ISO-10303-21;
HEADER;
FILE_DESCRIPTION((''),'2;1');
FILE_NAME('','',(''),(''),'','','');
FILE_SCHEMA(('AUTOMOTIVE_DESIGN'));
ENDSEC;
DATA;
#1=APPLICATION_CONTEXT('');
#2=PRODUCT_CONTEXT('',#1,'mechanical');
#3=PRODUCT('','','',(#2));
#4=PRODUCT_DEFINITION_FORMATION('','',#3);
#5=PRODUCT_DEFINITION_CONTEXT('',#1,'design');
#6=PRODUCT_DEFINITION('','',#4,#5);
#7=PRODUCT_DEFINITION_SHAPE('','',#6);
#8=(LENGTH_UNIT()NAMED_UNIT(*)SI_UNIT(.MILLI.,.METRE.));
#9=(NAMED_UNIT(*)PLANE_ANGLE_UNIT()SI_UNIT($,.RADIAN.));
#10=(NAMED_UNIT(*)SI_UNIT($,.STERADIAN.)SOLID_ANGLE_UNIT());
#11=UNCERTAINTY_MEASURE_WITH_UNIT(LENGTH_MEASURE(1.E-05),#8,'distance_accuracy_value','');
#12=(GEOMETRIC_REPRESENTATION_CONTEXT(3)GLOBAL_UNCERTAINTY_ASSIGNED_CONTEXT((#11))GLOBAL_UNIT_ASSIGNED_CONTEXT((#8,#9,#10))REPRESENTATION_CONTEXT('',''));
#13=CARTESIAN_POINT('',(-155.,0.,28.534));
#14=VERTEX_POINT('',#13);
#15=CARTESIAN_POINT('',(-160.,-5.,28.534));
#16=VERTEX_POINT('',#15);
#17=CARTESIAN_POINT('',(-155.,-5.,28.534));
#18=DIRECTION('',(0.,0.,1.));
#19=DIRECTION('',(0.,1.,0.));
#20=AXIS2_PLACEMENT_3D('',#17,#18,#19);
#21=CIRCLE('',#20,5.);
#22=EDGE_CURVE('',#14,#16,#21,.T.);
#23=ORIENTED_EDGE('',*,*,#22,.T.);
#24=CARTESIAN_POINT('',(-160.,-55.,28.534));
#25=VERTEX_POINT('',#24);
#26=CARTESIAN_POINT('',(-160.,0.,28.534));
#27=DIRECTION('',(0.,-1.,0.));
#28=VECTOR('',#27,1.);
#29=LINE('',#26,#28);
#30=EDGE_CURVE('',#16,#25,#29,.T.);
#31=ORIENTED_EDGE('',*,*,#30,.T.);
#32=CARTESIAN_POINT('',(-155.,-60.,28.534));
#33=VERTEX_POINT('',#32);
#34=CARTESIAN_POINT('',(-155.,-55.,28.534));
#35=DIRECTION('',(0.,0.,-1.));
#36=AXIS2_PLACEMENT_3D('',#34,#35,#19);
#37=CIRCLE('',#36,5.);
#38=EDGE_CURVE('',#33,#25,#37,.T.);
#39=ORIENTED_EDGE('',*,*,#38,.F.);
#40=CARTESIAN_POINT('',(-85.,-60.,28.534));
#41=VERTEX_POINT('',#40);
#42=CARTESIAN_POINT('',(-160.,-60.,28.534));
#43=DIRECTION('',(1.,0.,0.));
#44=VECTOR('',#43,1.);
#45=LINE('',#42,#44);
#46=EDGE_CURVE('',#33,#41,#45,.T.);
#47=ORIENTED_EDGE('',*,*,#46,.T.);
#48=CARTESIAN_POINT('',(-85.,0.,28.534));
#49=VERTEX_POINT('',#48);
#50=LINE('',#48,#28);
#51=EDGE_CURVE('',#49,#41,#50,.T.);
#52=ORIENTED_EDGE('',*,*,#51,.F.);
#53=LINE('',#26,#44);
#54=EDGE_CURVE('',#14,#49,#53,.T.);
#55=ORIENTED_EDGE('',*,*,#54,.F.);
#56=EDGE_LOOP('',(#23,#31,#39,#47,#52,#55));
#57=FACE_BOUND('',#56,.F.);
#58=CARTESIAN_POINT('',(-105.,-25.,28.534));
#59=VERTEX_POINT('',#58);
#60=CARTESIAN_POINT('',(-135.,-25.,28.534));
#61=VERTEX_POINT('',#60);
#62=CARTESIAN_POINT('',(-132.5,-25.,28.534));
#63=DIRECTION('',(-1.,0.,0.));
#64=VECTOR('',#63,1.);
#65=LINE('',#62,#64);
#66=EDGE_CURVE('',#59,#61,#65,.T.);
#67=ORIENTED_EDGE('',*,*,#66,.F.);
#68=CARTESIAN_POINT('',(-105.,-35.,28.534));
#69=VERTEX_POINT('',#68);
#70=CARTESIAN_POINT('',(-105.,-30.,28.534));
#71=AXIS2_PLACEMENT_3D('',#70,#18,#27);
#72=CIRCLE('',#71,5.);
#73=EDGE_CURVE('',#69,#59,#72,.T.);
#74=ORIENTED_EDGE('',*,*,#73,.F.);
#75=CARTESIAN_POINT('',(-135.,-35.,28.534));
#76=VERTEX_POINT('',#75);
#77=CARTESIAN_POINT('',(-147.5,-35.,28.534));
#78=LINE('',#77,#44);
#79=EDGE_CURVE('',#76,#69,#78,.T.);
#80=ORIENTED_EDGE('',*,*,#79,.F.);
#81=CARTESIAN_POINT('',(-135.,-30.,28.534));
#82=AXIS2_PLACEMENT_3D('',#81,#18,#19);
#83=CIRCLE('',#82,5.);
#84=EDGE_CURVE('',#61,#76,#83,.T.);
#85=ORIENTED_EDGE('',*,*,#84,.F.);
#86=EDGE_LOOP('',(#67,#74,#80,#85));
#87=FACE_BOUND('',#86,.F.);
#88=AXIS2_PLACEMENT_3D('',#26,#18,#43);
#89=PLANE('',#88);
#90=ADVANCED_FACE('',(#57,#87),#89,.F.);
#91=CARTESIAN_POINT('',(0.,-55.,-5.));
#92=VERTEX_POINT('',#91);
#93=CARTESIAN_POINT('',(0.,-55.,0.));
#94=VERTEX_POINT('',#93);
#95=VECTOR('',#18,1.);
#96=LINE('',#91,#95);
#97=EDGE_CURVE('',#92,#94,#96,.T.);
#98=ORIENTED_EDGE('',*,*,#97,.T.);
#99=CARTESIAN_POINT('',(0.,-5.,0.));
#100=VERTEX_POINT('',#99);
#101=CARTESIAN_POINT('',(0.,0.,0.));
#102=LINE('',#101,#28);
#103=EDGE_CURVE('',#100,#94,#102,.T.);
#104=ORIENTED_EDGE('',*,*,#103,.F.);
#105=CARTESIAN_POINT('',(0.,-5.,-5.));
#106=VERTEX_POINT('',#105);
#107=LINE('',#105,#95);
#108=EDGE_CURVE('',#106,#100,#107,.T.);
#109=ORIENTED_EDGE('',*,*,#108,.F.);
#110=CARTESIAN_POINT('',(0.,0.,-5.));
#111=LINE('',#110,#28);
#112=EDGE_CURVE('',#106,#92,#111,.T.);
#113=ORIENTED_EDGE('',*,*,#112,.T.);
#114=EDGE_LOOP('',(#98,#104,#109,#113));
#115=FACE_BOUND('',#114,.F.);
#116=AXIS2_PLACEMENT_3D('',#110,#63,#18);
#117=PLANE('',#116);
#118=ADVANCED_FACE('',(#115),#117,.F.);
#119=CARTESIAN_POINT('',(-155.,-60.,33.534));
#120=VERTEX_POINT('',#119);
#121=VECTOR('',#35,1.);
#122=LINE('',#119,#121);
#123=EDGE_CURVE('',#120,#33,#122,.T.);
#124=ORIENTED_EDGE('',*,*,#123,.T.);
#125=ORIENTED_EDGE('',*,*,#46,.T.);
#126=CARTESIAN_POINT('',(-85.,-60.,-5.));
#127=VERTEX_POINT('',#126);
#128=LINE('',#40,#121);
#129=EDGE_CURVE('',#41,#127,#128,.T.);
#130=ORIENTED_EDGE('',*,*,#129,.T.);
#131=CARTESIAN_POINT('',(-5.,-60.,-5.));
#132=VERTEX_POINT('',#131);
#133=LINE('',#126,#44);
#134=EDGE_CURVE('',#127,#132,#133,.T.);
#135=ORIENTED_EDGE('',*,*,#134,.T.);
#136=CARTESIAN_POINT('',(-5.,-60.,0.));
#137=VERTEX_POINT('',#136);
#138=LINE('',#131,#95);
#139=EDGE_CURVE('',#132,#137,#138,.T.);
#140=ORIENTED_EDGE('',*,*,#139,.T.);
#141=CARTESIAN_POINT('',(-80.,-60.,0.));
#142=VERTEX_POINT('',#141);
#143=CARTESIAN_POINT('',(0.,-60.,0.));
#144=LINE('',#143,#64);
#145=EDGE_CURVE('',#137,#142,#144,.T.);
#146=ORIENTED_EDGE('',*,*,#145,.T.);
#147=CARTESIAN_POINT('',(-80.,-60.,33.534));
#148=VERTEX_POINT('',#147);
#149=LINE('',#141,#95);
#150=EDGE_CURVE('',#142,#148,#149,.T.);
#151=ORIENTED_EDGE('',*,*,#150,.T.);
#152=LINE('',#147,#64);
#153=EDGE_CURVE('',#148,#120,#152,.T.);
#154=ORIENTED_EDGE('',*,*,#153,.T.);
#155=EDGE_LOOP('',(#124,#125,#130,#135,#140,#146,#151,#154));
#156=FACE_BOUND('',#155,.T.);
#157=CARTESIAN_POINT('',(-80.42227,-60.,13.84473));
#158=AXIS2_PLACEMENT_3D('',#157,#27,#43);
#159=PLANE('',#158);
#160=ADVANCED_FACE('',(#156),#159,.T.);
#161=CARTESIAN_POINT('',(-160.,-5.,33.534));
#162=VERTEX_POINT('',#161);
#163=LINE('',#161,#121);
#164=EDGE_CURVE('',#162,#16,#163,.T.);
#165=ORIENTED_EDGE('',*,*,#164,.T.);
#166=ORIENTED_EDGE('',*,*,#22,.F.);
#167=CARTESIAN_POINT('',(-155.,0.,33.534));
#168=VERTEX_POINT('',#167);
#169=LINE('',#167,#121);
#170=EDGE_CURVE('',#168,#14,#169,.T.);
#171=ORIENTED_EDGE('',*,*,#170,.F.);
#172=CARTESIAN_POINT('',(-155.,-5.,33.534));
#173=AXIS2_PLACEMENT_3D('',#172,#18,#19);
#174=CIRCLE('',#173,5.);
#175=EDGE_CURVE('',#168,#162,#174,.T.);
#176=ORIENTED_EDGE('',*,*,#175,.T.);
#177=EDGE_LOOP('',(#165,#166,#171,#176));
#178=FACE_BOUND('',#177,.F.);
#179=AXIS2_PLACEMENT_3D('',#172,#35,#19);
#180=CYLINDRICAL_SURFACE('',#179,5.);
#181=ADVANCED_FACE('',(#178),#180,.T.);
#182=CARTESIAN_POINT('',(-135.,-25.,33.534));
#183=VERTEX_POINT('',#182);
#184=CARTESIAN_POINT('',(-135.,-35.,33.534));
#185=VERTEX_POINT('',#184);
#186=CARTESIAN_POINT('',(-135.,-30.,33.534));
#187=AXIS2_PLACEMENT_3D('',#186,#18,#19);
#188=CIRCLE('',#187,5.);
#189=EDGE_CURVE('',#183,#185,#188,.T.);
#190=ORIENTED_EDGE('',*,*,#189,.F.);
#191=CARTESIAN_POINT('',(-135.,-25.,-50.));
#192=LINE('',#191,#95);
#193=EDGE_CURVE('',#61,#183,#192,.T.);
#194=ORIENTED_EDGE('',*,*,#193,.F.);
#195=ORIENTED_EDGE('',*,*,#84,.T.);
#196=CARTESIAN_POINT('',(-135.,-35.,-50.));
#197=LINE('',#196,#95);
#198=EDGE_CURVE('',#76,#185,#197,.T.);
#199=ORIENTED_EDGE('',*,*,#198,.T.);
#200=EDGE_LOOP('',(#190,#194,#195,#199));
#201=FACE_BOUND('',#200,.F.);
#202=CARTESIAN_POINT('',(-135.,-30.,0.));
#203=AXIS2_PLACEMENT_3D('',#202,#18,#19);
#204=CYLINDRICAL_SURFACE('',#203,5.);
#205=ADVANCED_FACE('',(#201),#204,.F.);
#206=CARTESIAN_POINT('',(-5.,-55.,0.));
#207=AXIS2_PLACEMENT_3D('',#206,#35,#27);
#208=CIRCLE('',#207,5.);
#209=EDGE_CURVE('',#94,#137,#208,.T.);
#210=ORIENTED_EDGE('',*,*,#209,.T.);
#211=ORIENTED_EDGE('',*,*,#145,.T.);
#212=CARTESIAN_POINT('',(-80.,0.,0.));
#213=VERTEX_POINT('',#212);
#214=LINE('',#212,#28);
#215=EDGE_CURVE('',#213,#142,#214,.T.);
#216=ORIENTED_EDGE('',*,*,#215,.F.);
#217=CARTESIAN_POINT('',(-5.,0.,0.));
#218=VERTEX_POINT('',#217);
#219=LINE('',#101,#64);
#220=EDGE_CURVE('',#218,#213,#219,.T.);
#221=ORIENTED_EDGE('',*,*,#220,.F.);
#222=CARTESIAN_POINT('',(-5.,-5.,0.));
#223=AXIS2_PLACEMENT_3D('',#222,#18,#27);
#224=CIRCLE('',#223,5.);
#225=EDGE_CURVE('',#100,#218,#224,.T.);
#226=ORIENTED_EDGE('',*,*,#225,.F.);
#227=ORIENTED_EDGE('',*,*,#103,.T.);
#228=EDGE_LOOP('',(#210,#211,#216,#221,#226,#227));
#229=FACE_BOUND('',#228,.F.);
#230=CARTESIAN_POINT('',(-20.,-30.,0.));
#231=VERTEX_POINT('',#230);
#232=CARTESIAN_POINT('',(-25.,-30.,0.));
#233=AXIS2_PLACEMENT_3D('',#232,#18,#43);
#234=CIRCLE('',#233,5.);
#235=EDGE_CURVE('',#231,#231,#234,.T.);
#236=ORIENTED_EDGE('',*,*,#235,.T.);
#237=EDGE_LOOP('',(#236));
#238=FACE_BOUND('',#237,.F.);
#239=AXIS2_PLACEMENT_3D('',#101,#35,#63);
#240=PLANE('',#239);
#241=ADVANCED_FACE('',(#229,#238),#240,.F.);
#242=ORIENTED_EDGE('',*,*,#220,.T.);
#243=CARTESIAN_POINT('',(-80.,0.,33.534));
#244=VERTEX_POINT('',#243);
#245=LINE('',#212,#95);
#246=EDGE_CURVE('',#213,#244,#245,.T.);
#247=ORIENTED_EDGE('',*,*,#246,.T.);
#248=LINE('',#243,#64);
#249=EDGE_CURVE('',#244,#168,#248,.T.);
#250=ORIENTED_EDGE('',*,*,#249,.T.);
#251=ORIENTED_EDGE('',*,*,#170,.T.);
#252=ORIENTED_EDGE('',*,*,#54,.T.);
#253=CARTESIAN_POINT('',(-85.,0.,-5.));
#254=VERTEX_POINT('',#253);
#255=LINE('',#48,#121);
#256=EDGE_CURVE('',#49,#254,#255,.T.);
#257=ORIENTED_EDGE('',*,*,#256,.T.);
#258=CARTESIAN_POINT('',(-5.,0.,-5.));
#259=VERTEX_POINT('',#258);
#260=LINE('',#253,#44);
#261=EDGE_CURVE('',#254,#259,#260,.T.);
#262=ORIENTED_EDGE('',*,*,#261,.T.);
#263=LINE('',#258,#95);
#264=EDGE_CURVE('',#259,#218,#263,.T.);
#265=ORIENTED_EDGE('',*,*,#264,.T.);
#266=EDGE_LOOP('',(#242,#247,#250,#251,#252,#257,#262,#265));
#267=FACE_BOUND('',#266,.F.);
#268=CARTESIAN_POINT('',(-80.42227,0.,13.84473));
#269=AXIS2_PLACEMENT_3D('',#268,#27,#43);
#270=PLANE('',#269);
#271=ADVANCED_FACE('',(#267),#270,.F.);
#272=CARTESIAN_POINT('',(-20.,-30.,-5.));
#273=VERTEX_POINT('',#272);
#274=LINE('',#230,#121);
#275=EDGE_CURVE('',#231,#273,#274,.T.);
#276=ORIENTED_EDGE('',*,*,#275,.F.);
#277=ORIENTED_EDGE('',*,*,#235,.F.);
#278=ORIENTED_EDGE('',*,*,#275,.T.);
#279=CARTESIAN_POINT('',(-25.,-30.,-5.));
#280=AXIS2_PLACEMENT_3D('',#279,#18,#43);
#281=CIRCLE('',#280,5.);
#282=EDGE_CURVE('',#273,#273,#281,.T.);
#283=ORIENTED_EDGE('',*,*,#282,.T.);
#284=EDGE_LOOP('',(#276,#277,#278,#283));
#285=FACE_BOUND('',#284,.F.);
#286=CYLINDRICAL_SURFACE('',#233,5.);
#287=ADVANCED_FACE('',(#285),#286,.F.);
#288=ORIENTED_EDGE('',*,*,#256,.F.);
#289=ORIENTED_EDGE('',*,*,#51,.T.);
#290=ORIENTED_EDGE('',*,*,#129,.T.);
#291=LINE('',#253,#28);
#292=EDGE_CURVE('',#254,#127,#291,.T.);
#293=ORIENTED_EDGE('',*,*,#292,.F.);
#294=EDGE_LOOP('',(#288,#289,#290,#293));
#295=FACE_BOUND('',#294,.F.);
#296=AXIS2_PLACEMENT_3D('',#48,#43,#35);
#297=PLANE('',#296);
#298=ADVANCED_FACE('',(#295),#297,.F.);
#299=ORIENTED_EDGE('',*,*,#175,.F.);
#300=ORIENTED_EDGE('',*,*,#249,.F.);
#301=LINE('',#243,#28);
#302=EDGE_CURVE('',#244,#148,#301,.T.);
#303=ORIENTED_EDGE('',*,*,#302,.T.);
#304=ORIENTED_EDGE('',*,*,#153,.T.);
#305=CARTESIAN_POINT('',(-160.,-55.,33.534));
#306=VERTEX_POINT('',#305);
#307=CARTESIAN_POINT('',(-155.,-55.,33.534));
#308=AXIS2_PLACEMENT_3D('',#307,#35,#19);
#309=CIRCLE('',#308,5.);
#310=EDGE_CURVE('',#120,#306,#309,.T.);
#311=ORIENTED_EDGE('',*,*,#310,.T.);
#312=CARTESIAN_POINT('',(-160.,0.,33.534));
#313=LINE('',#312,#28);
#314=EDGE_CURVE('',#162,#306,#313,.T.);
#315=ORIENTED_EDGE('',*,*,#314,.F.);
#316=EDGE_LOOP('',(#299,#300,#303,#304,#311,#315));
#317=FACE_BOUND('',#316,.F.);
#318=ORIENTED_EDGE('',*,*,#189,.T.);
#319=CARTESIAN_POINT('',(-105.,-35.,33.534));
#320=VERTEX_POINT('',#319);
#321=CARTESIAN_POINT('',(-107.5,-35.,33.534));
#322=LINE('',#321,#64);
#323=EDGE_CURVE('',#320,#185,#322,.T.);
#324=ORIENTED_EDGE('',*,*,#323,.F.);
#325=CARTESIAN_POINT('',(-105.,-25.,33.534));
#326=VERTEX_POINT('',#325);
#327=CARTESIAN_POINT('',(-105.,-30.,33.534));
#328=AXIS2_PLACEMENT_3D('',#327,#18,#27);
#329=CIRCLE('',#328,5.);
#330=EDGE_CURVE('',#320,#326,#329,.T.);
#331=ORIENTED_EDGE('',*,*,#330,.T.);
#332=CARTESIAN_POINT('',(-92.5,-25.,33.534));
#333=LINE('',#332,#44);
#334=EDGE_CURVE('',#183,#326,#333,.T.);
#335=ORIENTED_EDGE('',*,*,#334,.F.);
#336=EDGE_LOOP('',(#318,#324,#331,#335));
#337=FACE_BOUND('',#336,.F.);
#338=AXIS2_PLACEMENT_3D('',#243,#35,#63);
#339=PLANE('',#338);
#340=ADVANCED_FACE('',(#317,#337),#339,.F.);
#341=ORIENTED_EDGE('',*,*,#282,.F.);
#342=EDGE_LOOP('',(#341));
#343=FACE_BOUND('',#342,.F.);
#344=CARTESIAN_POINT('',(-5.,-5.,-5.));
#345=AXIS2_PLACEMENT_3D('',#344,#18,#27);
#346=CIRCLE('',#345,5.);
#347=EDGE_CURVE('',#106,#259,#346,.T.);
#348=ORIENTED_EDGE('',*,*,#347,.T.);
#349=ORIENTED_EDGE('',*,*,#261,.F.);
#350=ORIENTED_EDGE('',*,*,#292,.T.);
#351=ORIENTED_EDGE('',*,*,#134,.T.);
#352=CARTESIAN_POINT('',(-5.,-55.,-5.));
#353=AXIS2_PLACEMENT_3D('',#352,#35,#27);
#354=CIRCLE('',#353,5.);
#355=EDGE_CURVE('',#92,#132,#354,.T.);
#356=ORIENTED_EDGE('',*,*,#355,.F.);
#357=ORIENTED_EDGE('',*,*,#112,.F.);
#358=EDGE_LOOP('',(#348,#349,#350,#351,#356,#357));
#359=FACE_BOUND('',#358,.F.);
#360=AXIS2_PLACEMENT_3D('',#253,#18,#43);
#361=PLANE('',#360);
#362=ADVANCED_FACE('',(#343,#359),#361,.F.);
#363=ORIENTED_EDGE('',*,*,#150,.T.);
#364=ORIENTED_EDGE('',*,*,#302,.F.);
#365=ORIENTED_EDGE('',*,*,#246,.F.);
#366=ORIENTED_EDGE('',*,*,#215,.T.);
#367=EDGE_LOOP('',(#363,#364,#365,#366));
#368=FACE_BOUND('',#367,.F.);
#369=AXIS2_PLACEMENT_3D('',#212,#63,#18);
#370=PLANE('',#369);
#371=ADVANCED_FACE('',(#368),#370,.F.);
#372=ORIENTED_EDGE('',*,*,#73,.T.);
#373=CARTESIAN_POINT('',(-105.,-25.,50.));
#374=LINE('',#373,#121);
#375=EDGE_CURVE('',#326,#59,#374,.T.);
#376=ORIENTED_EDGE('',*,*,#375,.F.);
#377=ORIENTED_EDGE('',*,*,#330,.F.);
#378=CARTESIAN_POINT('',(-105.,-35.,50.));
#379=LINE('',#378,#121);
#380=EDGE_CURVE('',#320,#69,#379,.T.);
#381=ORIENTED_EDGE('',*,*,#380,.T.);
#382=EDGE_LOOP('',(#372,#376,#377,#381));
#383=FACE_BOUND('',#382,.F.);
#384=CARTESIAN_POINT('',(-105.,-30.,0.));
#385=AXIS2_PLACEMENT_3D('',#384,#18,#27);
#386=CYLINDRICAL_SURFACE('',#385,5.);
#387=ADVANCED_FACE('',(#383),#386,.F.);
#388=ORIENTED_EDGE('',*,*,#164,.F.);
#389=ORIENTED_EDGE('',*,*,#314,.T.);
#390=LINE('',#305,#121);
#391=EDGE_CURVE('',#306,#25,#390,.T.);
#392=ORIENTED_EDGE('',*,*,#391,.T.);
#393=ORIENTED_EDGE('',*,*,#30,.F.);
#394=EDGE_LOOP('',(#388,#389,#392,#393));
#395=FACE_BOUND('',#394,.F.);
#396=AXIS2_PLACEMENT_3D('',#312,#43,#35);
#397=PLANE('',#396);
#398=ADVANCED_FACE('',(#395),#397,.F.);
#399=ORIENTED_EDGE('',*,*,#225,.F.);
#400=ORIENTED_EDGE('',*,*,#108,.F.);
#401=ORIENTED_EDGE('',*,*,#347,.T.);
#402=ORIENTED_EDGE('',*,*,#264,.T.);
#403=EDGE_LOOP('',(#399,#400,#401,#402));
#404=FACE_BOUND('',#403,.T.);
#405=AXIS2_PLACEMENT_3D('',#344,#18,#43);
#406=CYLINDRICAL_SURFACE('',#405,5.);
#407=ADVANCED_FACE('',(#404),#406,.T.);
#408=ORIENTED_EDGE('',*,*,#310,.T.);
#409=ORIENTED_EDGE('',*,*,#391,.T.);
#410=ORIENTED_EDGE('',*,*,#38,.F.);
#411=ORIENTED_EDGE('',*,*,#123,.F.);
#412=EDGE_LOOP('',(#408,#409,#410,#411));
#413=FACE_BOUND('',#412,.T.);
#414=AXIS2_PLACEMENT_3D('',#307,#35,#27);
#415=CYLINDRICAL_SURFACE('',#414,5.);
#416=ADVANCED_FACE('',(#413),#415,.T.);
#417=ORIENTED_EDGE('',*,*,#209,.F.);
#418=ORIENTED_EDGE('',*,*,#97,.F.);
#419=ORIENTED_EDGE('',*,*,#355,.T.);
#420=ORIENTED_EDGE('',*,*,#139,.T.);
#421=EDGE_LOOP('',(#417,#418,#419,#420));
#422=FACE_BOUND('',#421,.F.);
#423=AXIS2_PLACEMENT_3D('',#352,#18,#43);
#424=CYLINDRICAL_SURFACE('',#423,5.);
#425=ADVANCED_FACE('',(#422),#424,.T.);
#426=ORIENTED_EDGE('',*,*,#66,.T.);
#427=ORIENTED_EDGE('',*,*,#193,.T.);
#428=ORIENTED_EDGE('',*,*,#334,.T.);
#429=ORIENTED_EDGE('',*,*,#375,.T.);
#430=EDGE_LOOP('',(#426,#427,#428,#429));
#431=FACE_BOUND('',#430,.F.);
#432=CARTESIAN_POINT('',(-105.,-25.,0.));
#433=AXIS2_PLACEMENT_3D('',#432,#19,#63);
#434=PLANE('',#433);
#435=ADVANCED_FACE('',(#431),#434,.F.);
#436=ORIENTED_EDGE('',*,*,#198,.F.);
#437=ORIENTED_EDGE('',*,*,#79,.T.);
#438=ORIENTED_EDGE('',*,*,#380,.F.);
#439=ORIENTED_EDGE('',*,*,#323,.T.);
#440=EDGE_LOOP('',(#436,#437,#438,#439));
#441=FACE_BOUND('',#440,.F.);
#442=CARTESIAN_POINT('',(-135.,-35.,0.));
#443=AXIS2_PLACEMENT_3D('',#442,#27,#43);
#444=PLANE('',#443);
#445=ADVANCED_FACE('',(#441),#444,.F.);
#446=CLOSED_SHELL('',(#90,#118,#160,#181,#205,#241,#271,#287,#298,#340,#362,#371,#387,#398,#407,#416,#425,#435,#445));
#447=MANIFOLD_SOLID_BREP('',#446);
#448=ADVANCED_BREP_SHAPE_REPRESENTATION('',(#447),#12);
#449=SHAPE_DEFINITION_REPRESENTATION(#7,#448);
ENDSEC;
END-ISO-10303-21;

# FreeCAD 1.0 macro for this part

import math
import FreeCAD as App
import Part
import Sketcher
Q = App.Units.Quantity


def edges_at(feature, points):
    """Names of the edges that pass closest to the given points."""
    edges = feature.Shape.Edges
    near = lambda p: min(range(len(edges)), key=lambda i: edges[i].distToShape(Part.Vertex(*p))[0])
    return sorted({f"Edge{near(p) + 1}" for p in points})


def add_polygon(sketch, points):
    """Adds a closed chain of lines whose ends are joined by coincident constraints."""
    first, n = sketch.GeometryCount, len(points)
    for a, b in zip(points, points[1:] + points[:1]):
        sketch.addGeometry(Part.LineSegment(App.Vector(*a, 0), App.Vector(*b, 0)), False)
    for i in range(n):
        sketch.addConstraint(Sketcher.Constraint("Coincident", first + i, 2, first + (i + 1) % n, 1))

doc = App.newDocument("Part")
body = doc.addObject("PartDesign::Body", "Body")

sketch1 = doc.addObject("Sketcher::SketchObject", "Sketch")
body.addObject(sketch1)
sketch1.AttachmentSupport = (doc.XZ_Plane, [""])
sketch1.MapMode = "FlatFace"
add_polygon(sketch1, [(0, -5), (0, 0), (-80, 0), (-80, 34), (-160, 34), (-160, 29), (-85, 29), (-85, -5)])
sketch1.addConstraint([
    Sketcher.Constraint("Vertical", 0),
    Sketcher.Constraint("Horizontal", 1),
    Sketcher.Constraint("Vertical", 2),
    Sketcher.Constraint("Horizontal", 3),
    Sketcher.Constraint("Vertical", 4),
    Sketcher.Constraint("Horizontal", 5),
    Sketcher.Constraint("Vertical", 6),
    Sketcher.Constraint("Horizontal", 7),
    Sketcher.Constraint("Coincident", 0, 2, -1, 1),
    Sketcher.Constraint("Equal", 1, 3),
    Sketcher.Constraint("Equal", 0, 4),
    Sketcher.Constraint("DistanceX", 1, 2, 1, 1, Q("80 mm")),
    Sketcher.Constraint("DistanceX", 5, 1, 5, 2, Q("75 mm")),
    Sketcher.Constraint("DistanceY", 0, 1, 0, 2, Q("5 mm")),
    Sketcher.Constraint("DistanceY", 2, 1, 2, 2, Q("33.534 mm")),
])
pad1 = doc.addObject("PartDesign::Pad", "Pad")
body.addObject(pad1)
pad1.Profile = sketch1
pad1.Length = 60

sketch2 = doc.addObject("Sketcher::SketchObject", "Sketch001")
body.addObject(sketch2)
sketch2.AttachmentSupport = (doc.XY_Plane, [""])
sketch2.MapMode = "FlatFace"
sketch2.addGeometry([
    Part.Circle(App.Vector(-25, -30, 0), App.Vector(0, 0, 1), 5),
    Part.LineSegment(App.Vector(-105, -25, 0), App.Vector(-135, -25, 0)),
    Part.ArcOfCircle(Part.Circle(App.Vector(-135, -30, 0), App.Vector(0, 0, 1), 5), math.radians(90), math.radians(270)),
    Part.LineSegment(App.Vector(-135, -35, 0), App.Vector(-105, -35, 0)),
    Part.ArcOfCircle(Part.Circle(App.Vector(-105, -30, 0), App.Vector(0, 0, 1), 5), math.radians(-90), math.radians(90)),
], False)
sketch2.addConstraint([
    Sketcher.Constraint("Tangent", 1, 2, 2, 1),
    Sketcher.Constraint("Tangent", 2, 2, 3, 1),
    Sketcher.Constraint("Tangent", 3, 2, 4, 1),
    Sketcher.Constraint("Tangent", 4, 2, 1, 1),
    Sketcher.Constraint("Horizontal", 1),
    Sketcher.Constraint("Horizontal", 3),
    Sketcher.Constraint("Equal", 0, 2),
    Sketcher.Constraint("Horizontal", 0, 3, 2, 3),
    Sketcher.Constraint("Diameter", 0, Q("10 mm")),
    Sketcher.Constraint("DistanceX", 1, 2, 1, 1, Q("30 mm")),
    Sketcher.Constraint("DistanceX", 0, 3, -1, 1, Q("25 mm")),
    Sketcher.Constraint("DistanceY", 0, 3, -1, 1, Q("30 mm")),
    Sketcher.Constraint("DistanceX", 2, 3, -1, 1, Q("135 mm")),
])
pocket1 = doc.addObject("PartDesign::Pocket", "Pocket")
body.addObject(pocket1)
pocket1.Profile = sketch2
pocket1.Length = 100
pocket1.Midplane = True
doc.recompute()

fillet = doc.addObject("PartDesign::Fillet", "Fillet")
body.addObject(fillet)
fillet.Base = (pocket1, edges_at(pocket1, [
    (-160, -60, 31.034),
    (-160, 0, 31.034),
    (0, -60, -2.5),
    (0, 0, -2.5),
]))
fillet.Radius = 5

doc.recompute()
